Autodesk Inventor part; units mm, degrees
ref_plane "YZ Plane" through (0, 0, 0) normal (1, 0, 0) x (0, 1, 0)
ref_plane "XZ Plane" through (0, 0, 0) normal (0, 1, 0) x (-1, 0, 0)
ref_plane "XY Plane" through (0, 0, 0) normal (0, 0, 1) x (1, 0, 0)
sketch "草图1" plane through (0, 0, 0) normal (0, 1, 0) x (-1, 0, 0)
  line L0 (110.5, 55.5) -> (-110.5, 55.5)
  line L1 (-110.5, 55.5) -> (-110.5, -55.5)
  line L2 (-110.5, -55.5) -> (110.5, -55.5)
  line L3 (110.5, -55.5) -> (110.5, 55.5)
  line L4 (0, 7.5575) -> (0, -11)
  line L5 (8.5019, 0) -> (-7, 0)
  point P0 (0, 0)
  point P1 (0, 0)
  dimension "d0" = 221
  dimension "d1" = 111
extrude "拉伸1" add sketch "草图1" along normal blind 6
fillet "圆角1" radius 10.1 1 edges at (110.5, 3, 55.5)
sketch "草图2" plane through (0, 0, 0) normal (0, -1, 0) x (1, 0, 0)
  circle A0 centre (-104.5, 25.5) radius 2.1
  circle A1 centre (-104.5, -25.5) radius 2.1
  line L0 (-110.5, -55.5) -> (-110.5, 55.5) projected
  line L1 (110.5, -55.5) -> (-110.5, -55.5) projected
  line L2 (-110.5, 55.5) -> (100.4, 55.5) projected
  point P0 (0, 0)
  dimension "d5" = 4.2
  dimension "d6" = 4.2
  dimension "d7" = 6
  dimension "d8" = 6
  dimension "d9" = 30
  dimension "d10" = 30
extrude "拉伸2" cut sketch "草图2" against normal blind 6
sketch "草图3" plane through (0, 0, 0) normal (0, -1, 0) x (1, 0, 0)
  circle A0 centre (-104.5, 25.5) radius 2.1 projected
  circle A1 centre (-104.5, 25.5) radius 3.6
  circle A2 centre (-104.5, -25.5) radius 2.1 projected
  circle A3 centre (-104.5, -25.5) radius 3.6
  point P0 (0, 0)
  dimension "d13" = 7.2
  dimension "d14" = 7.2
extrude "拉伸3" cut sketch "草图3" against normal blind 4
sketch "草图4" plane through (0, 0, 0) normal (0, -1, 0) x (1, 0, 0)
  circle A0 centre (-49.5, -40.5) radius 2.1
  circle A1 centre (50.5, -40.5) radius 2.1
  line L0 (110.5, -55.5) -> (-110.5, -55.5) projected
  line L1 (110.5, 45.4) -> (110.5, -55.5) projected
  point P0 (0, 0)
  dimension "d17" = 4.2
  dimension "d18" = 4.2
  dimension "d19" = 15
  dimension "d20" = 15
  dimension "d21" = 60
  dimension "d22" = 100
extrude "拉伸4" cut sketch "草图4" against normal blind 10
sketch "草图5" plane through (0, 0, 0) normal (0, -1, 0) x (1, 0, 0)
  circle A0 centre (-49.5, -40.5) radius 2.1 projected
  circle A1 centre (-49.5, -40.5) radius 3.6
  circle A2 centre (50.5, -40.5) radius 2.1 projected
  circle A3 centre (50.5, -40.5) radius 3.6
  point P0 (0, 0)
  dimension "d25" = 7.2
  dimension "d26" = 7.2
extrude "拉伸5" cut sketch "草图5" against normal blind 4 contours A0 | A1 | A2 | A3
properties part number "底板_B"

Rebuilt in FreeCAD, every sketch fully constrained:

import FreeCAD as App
import Part
import Sketcher

V = App.Vector
Q = App.Units.Quantity


def edges_at(feature, points):
    """Names of the edges that pass closest to the given points."""
    edges = feature.Shape.Edges
    near = lambda p: min(range(len(edges)), key=lambda i: edges[i].distToShape(Part.Vertex(*p))[0])
    return sorted({f"Edge{near(p) + 1}" for p in points})


def add_polygon(sketch, points):
    """Adds a closed chain of lines whose ends are joined by coincident constraints."""
    first, n = sketch.GeometryCount, len(points)
    for a, b in zip(points, points[1:] + points[:1]):
        sketch.addGeometry(Part.LineSegment(App.Vector(*a, 0), App.Vector(*b, 0)), False)
    for i in range(n):
        sketch.addConstraint(Sketcher.Constraint("Coincident", first + i, 2, first + (i + 1) % n, 1))

doc = App.newDocument("Part")
body = doc.addObject("PartDesign::Body", "Body")

sketch1 = body.newObject("Sketcher::SketchObject", "Sketch")
sketch1.AttachmentSupport = (doc.getObject("XZ_Plane"), [""])
sketch1.MapMode = "FlatFace"
add_polygon(sketch1, [(-110, -56), (-110, 56), (110, 56), (110, -56)])
sketch1.addConstraint([
    Sketcher.Constraint("Vertical", 0),
    Sketcher.Constraint("Horizontal", 1),
    Sketcher.Constraint("Vertical", 2),
    Sketcher.Constraint("Horizontal", 3),
    Sketcher.Constraint("Symmetric", 0, 2, 2, 2, -1, 1),
    Sketcher.Constraint("DistanceX", 1, 1, 1, 2, Q("221 mm")),
    Sketcher.Constraint("DistanceY", 0, 1, 0, 2, Q("111 mm")),
])
pad1 = body.newObject("PartDesign::Pad", "Pad")
pad1.Profile = sketch1
pad1.Length = 6
pad1.Reversed = True
doc.recompute()

fillet = body.newObject("PartDesign::Fillet", "Fillet")
fillet.Base = (pad1, edges_at(pad1, [(110.5, 3, 55.5)]))
fillet.Radius = 10.1

sketch2 = body.newObject("Sketcher::SketchObject", "Sketch001")
sketch2.AttachmentSupport = (doc.getObject("XZ_Plane"), [""])
sketch2.MapMode = "FlatFace"
sketch2.addGeometry([
    Part.Circle(V(-104.5, 25.5, 0), V(0, 0, 1), 2.1),
    Part.Circle(V(-104.5, -25.5, 0), V(0, 0, 1), 2.1),
], False)
sketch2.addConstraint([
    Sketcher.Constraint("Equal", 0, 1),
    Sketcher.Constraint("Symmetric", 0, 3, 1, 3, -1),
    Sketcher.Constraint("Diameter", 0, Q("4.2 mm")),
    Sketcher.Constraint("DistanceY", 1, 3, 0, 3, Q("51 mm")),
    Sketcher.Constraint("DistanceX", 0, 3, -1, 1, Q("104.5 mm")),
])
pocket1 = body.newObject("PartDesign::Pocket", "Pocket")
pocket1.Profile = sketch2
pocket1.Length = 6

sketch3 = body.newObject("Sketcher::SketchObject", "Sketch002")
sketch3.AttachmentSupport = (doc.getObject("XZ_Plane"), [""])
sketch3.MapMode = "FlatFace"
sketch3.addGeometry([
    Part.Circle(V(-104.5, 25.5, 0), V(0, 0, 1), 3.6),
    Part.Circle(V(-104.5, 25.5, 0), V(0, 0, 1), 2.1),
    Part.Circle(V(-104.5, -25.5, 0), V(0, 0, 1), 3.6),
    Part.Circle(V(-104.5, -25.5, 0), V(0, 0, 1), 2.1),
], False)
sketch3.addConstraint([
    Sketcher.Constraint("Coincident", 1, 3, 0, 3),
    Sketcher.Constraint("Coincident", 3, 3, 2, 3),
    Sketcher.Constraint("Equal", 0, 2),
    Sketcher.Constraint("Equal", 1, 3),
    Sketcher.Constraint("Symmetric", 0, 3, 2, 3, -1),
    Sketcher.Constraint("Diameter", 0, Q("7.2 mm")),
    Sketcher.Constraint("Diameter", 1, Q("4.2 mm")),
    Sketcher.Constraint("DistanceY", 2, 3, 0, 3, Q("51 mm")),
    Sketcher.Constraint("DistanceX", 0, 3, -1, 1, Q("104.5 mm")),
])
pocket2 = body.newObject("PartDesign::Pocket", "Pocket001")
pocket2.Profile = sketch3
pocket2.Length = 4

sketch4 = body.newObject("Sketcher::SketchObject", "Sketch003")
sketch4.AttachmentSupport = (doc.getObject("XZ_Plane"), [""])
sketch4.MapMode = "FlatFace"
sketch4.addGeometry([
    Part.Circle(V(-49.5, -40.5, 0), V(0, 0, 1), 2.1),
    Part.Circle(V(50.5, -40.5, 0), V(0, 0, 1), 2.1),
], False)
sketch4.addConstraint([
    Sketcher.Constraint("Equal", 0, 1),
    Sketcher.Constraint("Horizontal", 0, 3, 1, 3),
    Sketcher.Constraint("Diameter", 0, Q("4.2 mm")),
    Sketcher.Constraint("DistanceX", 0, 3, 1, 3, Q("100 mm")),
    Sketcher.Constraint("DistanceX", 0, 3, -1, 1, Q("49.5 mm")),
    Sketcher.Constraint("DistanceY", 0, 3, -1, 1, Q("40.5 mm")),
])
pocket3 = body.newObject("PartDesign::Pocket", "Pocket002")
pocket3.Profile = sketch4
pocket3.Length = 10

sketch5 = body.newObject("Sketcher::SketchObject", "Sketch004")
sketch5.AttachmentSupport = (doc.getObject("XZ_Plane"), [""])
sketch5.MapMode = "FlatFace"
sketch5.addGeometry([
    Part.Circle(V(-49.5, -40.5, 0), V(0, 0, 1), 3.6),
    Part.Circle(V(50.5, -40.5, 0), V(0, 0, 1), 3.6),
], False)
sketch5.addConstraint([
    Sketcher.Constraint("Equal", 0, 1),
    Sketcher.Constraint("Horizontal", 0, 3, 1, 3),
    Sketcher.Constraint("Diameter", 0, Q("7.2 mm")),
    Sketcher.Constraint("DistanceX", 0, 3, 1, 3, Q("100 mm")),
    Sketcher.Constraint("DistanceX", 0, 3, -1, 1, Q("49.5 mm")),
    Sketcher.Constraint("DistanceY", 0, 3, -1, 1, Q("40.5 mm")),
])
pocket4 = body.newObject("PartDesign::Pocket", "Pocket003")
pocket4.Profile = sketch5
pocket4.Length = 4

doc.recompute()
